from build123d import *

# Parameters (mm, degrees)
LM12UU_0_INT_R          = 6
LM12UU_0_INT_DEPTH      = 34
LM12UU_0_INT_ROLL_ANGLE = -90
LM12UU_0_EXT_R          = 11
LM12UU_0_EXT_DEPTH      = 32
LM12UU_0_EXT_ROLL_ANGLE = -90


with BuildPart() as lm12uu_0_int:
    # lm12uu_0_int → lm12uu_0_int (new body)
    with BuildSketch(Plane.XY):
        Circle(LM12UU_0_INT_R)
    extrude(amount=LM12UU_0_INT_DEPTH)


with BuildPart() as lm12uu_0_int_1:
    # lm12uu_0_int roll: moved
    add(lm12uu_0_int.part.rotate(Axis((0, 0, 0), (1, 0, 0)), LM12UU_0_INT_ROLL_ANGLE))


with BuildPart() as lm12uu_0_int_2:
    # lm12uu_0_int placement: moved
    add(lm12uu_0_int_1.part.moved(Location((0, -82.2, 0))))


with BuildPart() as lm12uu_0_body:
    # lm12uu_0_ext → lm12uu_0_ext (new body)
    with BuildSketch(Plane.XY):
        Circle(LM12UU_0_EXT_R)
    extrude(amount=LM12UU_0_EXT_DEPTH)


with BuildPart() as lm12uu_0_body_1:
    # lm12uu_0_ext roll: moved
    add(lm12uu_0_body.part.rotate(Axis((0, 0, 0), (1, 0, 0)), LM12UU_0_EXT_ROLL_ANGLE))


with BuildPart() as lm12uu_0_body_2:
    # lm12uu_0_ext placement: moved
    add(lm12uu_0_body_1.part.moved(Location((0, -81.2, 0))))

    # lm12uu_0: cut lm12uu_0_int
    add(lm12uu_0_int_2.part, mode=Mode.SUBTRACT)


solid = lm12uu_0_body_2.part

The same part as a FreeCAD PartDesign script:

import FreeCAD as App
import Part
import Sketcher
from FreeCAD import Vector

doc = App.newDocument("Part")
body = doc.addObject("PartDesign::Body", "Body")

# Sketch on XY plane
sketch1 = body.newObject("Sketcher::SketchObject", "Sketch")
sketch1.AttachmentSupport = (doc.getObject("XY_Plane"), [""])
sketch1.MapMode = "FlatFace"
sketch1.addGeometry(Part.Circle(Vector(0, 0, 0), Vector(0, 0, 1), 6), False)
sketch1.addConstraint([
    Sketcher.Constraint("Coincident", 0, 3, -1, 1),
    Sketcher.Constraint("Diameter", 0, 12.0),
])
pad1 = body.newObject("PartDesign::Pad", "Pad")
pad1.Profile = sketch1
pad1.Length = 34
body2 = doc.addObject("PartDesign::Body", "Body001")
doc.recompute()

body.Placement = App.Placement(Vector(0, 0, 0), App.Rotation(Vector(1, 0, 0), 270))
boolean = body2.newObject("PartDesign::Boolean", "Boolean")
boolean.Type = "Fuse"
boolean.addObjects([body])
body3 = doc.addObject("PartDesign::Body", "Body002")
doc.recompute()

body2.Placement = App.Placement(Vector(0, -82.2, 0), App.Rotation(Vector(0, 0, 1), 0))
boolean2 = body3.newObject("PartDesign::Boolean", "Boolean001")
boolean2.Type = "Fuse"
boolean2.addObjects([body2])
body4 = doc.addObject("PartDesign::Body", "Body003")

# Sketch on XY plane
sketch2 = body4.newObject("Sketcher::SketchObject", "Sketch001")
sketch2.AttachmentSupport = (doc.getObject("XY_Plane003"), [""])
sketch2.MapMode = "FlatFace"
sketch2.addGeometry(Part.Circle(Vector(0, 0, 0), Vector(0, 0, 1), 11), False)
sketch2.addConstraint([
    Sketcher.Constraint("Coincident", 0, 3, -1, 1),
    Sketcher.Constraint("Diameter", 0, 22.0),
])
pad2 = body4.newObject("PartDesign::Pad", "Pad001")
pad2.Profile = sketch2
pad2.Length = 32
body5 = doc.addObject("PartDesign::Body", "Body004")
doc.recompute()

body4.Placement = App.Placement(Vector(0, 0, 0), App.Rotation(Vector(1, 0, 0), 270))
boolean3 = body5.newObject("PartDesign::Boolean", "Boolean002")
boolean3.Type = "Fuse"
boolean3.addObjects([body4])
body6 = doc.addObject("PartDesign::Body", "Body005")
doc.recompute()

body5.Placement = App.Placement(Vector(0, -81.2, 0), App.Rotation(Vector(0, 0, 1), 0))
boolean4 = body6.newObject("PartDesign::Boolean", "Boolean003")
boolean4.Type = "Fuse"
boolean4.addObjects([body5])
doc.recompute()

boolean5 = body6.newObject("PartDesign::Boolean", "Boolean004")
boolean5.Type = "Cut"
boolean5.addObjects([body3])

doc.recompute()
